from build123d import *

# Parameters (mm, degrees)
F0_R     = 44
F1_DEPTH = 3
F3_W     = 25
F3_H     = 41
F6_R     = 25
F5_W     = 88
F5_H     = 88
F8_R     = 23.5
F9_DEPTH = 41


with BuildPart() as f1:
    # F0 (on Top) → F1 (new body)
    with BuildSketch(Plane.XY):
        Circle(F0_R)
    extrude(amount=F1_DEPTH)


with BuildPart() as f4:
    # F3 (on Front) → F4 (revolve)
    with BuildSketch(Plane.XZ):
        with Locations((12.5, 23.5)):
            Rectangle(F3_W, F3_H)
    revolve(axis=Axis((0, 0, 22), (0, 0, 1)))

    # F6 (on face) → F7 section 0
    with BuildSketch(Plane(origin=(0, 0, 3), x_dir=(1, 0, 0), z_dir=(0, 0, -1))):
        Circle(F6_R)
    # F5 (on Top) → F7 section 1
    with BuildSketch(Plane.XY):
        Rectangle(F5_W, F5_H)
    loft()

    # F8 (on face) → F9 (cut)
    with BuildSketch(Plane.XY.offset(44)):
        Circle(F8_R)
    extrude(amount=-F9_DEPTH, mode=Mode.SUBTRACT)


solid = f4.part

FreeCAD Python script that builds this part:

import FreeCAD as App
import Part
import Sketcher

doc = App.newDocument("Part")
params = doc.addObject("Spreadsheet::Sheet", "Params")
for row, (alias, value) in enumerate([
    ("sketch1_diameter", "88 mm"),
    ("pad1_length", "3 mm"),
    ("sketch2_width", "25 mm"),
    ("sketch2_height", "41 mm"),
    ("revolution_angle", "360 deg"),
    ("sketch3_diameter", "50 mm"),
    ("sketch4_width", "88 mm"),
    ("sketch5_diameter", "47 mm"),
    ("pocket1_length", "41 mm"),
], start=1):
    params.set(f"A{row}", alias)
    params.set(f"B{row}", "=" + value)
    params.setAlias(f"B{row}", alias)

body = doc.addObject("PartDesign::Body", "Body")

sketch1 = body.newObject("Sketcher::SketchObject", "Sketch")
sketch1.AttachmentSupport = (doc.getObject("XY_Plane"), [""])
sketch1.MapMode = "FlatFace"
sketch1.addGeometry(Part.Circle(App.Vector(0, 0, 0), App.Vector(0, 0, 1), 44), False)
sketch1.addConstraint(Sketcher.Constraint("Coincident", 0, 3, -1, 1))
sketch1.addConstraint(Sketcher.Constraint("Diameter", 0, 88.0))
sketch1.setExpression("Constraints[1]", "Params.sketch1_diameter")
pad1 = body.newObject("PartDesign::Pad", "Pad")
pad1.Profile = sketch1
pad1.setExpression("Length", "Params.pad1_length")
body2 = doc.addObject("PartDesign::Body", "Body001")

sketch2 = body2.newObject("Sketcher::SketchObject", "Sketch001")
sketch2.AttachmentSupport = (doc.getObject("XZ_Plane001"), [""])
sketch2.MapMode = "FlatFace"
sketch2.addGeometry(Part.LineSegment(App.Vector(0, 44, 0), App.Vector(0, 3, 0)), False)
sketch2.addGeometry(Part.LineSegment(App.Vector(0, 3, 0), App.Vector(25, 3, 0)), False)
sketch2.addGeometry(Part.LineSegment(App.Vector(25, 3, 0), App.Vector(25, 44, 0)), False)
sketch2.addGeometry(Part.LineSegment(App.Vector(25, 44, 0), App.Vector(0, 44, 0)), False)
sketch2.addConstraint(Sketcher.Constraint("Coincident", 0, 2, 1, 1))
sketch2.addConstraint(Sketcher.Constraint("Coincident", 1, 2, 2, 1))
sketch2.addConstraint(Sketcher.Constraint("Coincident", 2, 2, 3, 1))
sketch2.addConstraint(Sketcher.Constraint("Coincident", 3, 2, 0, 1))
sketch2.addConstraint(Sketcher.Constraint("Vertical", 0))
sketch2.addConstraint(Sketcher.Constraint("Horizontal", 1))
sketch2.addConstraint(Sketcher.Constraint("Vertical", 2))
sketch2.addConstraint(Sketcher.Constraint("Horizontal", 3))
sketch2.addConstraint(Sketcher.Constraint("PointOnObject", 0, 2, -2))
sketch2.addConstraint(Sketcher.Constraint("DistanceX", 1, 1, 1, 2, 25.0))
sketch2.addConstraint(Sketcher.Constraint("DistanceY", 0, 2, 0, 1, 41.0))
sketch2.addConstraint(Sketcher.Constraint("DistanceY", -1, 1, 0, 2, 3.0))
sketch2.setExpression("Constraints[9]", "Params.sketch2_width")
sketch2.setExpression("Constraints[10]", "Params.sketch2_height")
revolution = body2.newObject("PartDesign::Revolution", "Revolution")
revolution.Profile = sketch2
revolution.ReferenceAxis = (sketch2, ["V_Axis"])
revolution.setExpression("Angle", "Params.revolution_angle")

sketch3 = body2.newObject("Sketcher::SketchObject", "Sketch002")
sketch3.AttachmentSupport = (doc.getObject("XY_Plane001"), [""])
sketch3.MapMode = "FlatFace"
sketch3.AttachmentOffset = App.Placement(App.Vector(0, 0, 3), App.Rotation())
sketch3.addGeometry(Part.Circle(App.Vector(0, 0, 0), App.Vector(0, 0, 1), 25), False)
sketch3.addConstraint(Sketcher.Constraint("Coincident", 0, 3, -1, 1))
sketch3.addConstraint(Sketcher.Constraint("Diameter", 0, 50.0))
sketch3.setExpression("Constraints[1]", "Params.sketch3_diameter")

sketch4 = body2.newObject("Sketcher::SketchObject", "Sketch003")
sketch4.AttachmentSupport = (doc.getObject("XY_Plane001"), [""])
sketch4.MapMode = "FlatFace"
sketch4.addGeometry(Part.LineSegment(App.Vector(-44, 44, 0), App.Vector(-44, -44, 0)), False)
sketch4.addGeometry(Part.LineSegment(App.Vector(-44, -44, 0), App.Vector(44, -44, 0)), False)
sketch4.addGeometry(Part.LineSegment(App.Vector(44, -44, 0), App.Vector(44, 44, 0)), False)
sketch4.addGeometry(Part.LineSegment(App.Vector(44, 44, 0), App.Vector(-44, 44, 0)), False)
sketch4.addConstraint(Sketcher.Constraint("Coincident", 0, 2, 1, 1))
sketch4.addConstraint(Sketcher.Constraint("Coincident", 1, 2, 2, 1))
sketch4.addConstraint(Sketcher.Constraint("Coincident", 2, 2, 3, 1))
sketch4.addConstraint(Sketcher.Constraint("Coincident", 3, 2, 0, 1))
sketch4.addConstraint(Sketcher.Constraint("Vertical", 0))
sketch4.addConstraint(Sketcher.Constraint("Horizontal", 1))
sketch4.addConstraint(Sketcher.Constraint("Vertical", 2))
sketch4.addConstraint(Sketcher.Constraint("Horizontal", 3))
sketch4.addConstraint(Sketcher.Constraint("Symmetric", 0, 2, 2, 2, -1, 1))
sketch4.addConstraint(Sketcher.Constraint("Equal", 3, 0))
sketch4.addConstraint(Sketcher.Constraint("DistanceX", 1, 1, 1, 2, 88.0))
sketch4.setExpression("Constraints[10]", "Params.sketch4_width")

additiveloft = body2.newObject("PartDesign::AdditiveLoft", "AdditiveLoft")
additiveloft.Profile = sketch3
additiveloft.Sections = [sketch4]

sketch5 = body2.newObject("Sketcher::SketchObject", "Sketch004")
sketch5.AttachmentSupport = (doc.getObject("XY_Plane001"), [""])
sketch5.MapMode = "FlatFace"
sketch5.AttachmentOffset = App.Placement(App.Vector(0, 0, 44), App.Rotation())
sketch5.addGeometry(Part.Circle(App.Vector(0, 0, 0), App.Vector(0, 0, 1), 23.5), False)
sketch5.addConstraint(Sketcher.Constraint("Coincident", 0, 3, -1, 1))
sketch5.addConstraint(Sketcher.Constraint("Diameter", 0, 47.0))
sketch5.setExpression("Constraints[1]", "Params.sketch5_diameter")
pocket1 = body2.newObject("PartDesign::Pocket", "Pocket")
pocket1.Profile = sketch5
pocket1.setExpression("Length", "Params.pocket1_length")
body.Visibility = False

doc.recompute()
